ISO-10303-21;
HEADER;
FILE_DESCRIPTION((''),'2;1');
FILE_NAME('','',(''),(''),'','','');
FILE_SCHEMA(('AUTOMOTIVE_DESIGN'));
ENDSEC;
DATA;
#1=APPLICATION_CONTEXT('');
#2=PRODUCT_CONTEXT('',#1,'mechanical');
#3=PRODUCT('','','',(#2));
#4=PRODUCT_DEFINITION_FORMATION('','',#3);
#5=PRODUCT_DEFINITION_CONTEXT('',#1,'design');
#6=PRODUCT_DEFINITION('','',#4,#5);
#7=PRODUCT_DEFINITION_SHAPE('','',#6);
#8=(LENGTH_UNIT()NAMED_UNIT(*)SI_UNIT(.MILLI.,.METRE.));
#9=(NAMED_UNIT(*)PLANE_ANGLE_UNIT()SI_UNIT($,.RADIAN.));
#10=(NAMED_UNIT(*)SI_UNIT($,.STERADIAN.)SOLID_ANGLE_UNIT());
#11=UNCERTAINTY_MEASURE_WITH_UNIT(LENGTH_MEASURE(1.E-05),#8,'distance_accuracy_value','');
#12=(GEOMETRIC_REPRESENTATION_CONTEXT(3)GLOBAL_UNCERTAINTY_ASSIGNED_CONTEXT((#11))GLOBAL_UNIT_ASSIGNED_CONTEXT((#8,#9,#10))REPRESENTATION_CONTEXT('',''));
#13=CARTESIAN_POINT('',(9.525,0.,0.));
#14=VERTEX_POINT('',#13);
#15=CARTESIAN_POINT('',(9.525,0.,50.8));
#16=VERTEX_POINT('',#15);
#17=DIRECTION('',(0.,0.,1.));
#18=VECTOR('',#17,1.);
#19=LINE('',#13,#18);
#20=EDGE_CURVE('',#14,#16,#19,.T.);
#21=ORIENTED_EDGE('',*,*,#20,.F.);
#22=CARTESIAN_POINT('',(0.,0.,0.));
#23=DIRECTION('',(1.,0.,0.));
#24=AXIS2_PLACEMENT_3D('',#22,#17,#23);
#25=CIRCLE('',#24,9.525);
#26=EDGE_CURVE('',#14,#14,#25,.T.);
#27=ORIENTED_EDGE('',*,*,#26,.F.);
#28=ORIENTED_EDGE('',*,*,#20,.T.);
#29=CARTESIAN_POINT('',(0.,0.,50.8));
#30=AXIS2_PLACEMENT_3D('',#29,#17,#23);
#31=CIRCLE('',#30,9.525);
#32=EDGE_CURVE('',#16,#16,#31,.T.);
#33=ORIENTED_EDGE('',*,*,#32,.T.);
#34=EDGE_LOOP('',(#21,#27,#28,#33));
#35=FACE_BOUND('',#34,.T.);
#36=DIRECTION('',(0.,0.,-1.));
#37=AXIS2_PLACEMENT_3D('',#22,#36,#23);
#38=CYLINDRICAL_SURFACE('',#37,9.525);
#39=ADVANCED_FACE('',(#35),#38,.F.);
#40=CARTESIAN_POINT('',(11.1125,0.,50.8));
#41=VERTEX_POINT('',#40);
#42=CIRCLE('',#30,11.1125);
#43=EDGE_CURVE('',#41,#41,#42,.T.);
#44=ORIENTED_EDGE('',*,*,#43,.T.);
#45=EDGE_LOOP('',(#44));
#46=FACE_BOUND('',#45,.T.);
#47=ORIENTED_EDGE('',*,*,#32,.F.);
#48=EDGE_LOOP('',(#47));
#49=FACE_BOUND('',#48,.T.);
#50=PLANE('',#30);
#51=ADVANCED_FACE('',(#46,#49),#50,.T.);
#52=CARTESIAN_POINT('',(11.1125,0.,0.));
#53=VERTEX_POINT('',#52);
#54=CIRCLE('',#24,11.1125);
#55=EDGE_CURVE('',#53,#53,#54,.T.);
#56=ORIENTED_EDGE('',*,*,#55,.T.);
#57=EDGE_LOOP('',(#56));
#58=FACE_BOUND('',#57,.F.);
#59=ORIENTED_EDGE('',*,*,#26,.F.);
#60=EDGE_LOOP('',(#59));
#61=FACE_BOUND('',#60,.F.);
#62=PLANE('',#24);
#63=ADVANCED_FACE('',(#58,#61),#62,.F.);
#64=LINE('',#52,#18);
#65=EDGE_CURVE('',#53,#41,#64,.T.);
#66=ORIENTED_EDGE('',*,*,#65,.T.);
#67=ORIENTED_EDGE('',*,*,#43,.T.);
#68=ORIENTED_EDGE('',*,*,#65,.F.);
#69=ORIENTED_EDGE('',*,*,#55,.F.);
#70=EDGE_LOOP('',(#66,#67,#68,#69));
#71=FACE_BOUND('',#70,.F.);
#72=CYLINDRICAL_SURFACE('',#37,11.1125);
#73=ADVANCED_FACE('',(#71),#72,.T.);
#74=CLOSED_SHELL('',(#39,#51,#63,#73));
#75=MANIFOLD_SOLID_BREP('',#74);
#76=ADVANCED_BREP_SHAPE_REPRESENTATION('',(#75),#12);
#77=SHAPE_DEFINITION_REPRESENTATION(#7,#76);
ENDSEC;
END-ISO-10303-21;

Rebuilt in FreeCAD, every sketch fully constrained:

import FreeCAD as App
import Part
import Sketcher
Q = App.Units.Quantity

doc = App.newDocument("Part")
body = doc.addObject("PartDesign::Body", "Body")

# Sketch on XY plane
sketch1 = doc.addObject("Sketcher::SketchObject", "Sketch")
body.addObject(sketch1)
sketch1.AttachmentSupport = (doc.XY_Plane, [""])
sketch1.MapMode = "FlatFace"
sketch1.addGeometry([
    Part.Circle(App.Vector(0, 0, 0), App.Vector(0, 0, 1), 11),
    Part.Circle(App.Vector(0, 0, 0), App.Vector(0, 0, 1), 10),
], False)
sketch1.addConstraint([
    Sketcher.Constraint("Coincident", 0, 3, -1, 1),
    Sketcher.Constraint("Coincident", 1, 3, -1, 1),
    Sketcher.Constraint("Diameter", 1, Q("0.75 in")),
    Sketcher.Constraint("Diameter", 0, Q("0.875 in")),
])
pad1 = doc.addObject("PartDesign::Pad", "Pad")
body.addObject(pad1)
pad1.Profile = sketch1
pad1.Length = Q("2 in")

doc.recompute()
